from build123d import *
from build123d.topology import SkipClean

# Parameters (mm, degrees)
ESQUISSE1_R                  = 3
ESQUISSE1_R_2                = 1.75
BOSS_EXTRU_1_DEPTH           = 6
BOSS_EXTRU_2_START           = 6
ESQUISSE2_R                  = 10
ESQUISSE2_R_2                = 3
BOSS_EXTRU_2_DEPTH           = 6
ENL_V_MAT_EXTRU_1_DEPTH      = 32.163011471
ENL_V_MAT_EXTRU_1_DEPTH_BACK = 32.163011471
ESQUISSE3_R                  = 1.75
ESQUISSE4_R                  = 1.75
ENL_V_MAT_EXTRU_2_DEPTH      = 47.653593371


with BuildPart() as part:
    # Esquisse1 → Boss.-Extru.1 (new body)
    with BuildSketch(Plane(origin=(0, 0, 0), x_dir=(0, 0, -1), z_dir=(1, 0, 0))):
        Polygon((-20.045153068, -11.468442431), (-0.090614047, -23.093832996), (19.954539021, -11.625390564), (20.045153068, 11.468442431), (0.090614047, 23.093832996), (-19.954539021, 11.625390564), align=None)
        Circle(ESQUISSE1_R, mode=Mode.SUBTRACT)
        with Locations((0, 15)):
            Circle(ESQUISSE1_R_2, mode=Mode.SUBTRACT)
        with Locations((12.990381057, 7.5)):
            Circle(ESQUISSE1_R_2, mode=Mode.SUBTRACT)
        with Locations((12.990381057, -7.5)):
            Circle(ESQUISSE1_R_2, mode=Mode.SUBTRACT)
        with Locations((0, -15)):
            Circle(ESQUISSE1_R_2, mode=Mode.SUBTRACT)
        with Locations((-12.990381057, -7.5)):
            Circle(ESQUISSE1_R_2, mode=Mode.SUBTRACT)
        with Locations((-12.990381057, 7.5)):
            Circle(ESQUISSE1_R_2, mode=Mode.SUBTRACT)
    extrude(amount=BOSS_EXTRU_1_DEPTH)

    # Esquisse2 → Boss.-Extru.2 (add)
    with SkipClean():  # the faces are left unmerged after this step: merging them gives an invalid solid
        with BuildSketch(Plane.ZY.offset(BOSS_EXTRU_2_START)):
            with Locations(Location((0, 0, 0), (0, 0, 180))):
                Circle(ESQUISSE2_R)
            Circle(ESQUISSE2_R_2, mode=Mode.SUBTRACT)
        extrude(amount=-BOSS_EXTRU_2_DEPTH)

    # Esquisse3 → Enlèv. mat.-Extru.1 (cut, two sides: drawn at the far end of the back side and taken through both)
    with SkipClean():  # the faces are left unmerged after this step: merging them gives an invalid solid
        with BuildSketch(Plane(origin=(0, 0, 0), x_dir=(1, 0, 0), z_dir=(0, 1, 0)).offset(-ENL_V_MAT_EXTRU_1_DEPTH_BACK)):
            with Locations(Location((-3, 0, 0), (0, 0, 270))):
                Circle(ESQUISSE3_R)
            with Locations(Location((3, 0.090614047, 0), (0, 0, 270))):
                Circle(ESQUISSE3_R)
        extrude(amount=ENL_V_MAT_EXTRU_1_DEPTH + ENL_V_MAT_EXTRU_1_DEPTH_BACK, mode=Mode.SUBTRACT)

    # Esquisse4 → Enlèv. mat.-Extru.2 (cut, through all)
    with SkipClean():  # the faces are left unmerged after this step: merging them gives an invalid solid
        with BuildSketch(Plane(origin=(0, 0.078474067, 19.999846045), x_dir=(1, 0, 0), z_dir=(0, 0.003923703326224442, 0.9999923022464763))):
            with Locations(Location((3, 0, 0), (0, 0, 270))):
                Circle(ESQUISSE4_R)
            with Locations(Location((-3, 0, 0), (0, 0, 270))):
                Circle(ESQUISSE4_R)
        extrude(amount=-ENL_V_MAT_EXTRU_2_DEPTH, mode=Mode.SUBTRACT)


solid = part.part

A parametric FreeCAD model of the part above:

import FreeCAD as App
import Part
import Sketcher


def add_polygon(sketch, points):
    """Adds a closed chain of lines whose ends are joined by coincident constraints."""
    first, n = sketch.GeometryCount, len(points)
    for a, b in zip(points, points[1:] + points[:1]):
        sketch.addGeometry(Part.LineSegment(App.Vector(*a, 0), App.Vector(*b, 0)), False)
    for i in range(n):
        sketch.addConstraint(Sketcher.Constraint("Coincident", first + i, 2, first + (i + 1) % n, 1))

doc = App.newDocument("Part")
params = doc.addObject("Spreadsheet::Sheet", "Params")
for row, (alias, value) in enumerate([
    ("sketch1_diameter", "6 mm"),
    ("sketch1_diameter2", "3.5 mm"),
    ("pad1_length", "6 mm"),
    ("sketch2_diameter", "20 mm"),
    ("sketch2_diameter2", "6 mm"),
    ("pad2_length", "6 mm"),
    ("sketch3_diameter", "3.5 mm"),
    ("sketch4_diameter", "3.5 mm"),
], start=1):
    params.set(f"A{row}", alias)
    params.set(f"B{row}", "=" + value)
    params.setAlias(f"B{row}", alias)

body = doc.addObject("PartDesign::Body", "Body")

# Sketch on YZ plane
sketch1 = body.newObject("Sketcher::SketchObject", "Sketch")
sketch1.AttachmentSupport = (doc.getObject("YZ_Plane"), [""])
sketch1.MapMode = "FlatFace"
add_polygon(sketch1, [(-11.5, 20), (-23.1, 0.1), (-11.6, -20), (11.5, -20), (23.1, -0.1), (11.6, 20)])  # lines 0-5
sketch1.addGeometry(Part.Circle(App.Vector(-7.5, 13, 0), App.Vector(0, 0, 1), 1.8), False)  # 6
sketch1.addGeometry(Part.Circle(App.Vector(-15, 0, 0), App.Vector(0, 0, 1), 1.8), False)  # 7
sketch1.addGeometry(Part.Circle(App.Vector(-7.5, -13, 0), App.Vector(0, 0, 1), 1.8), False)  # 8
sketch1.addGeometry(Part.Circle(App.Vector(7.5, 13, 0), App.Vector(0, 0, 1), 1.8), False)  # 9
sketch1.addGeometry(Part.Circle(App.Vector(0, 0, 0), App.Vector(0, 0, 1), 3), False)  # 10
sketch1.addGeometry(Part.Circle(App.Vector(7.5, -13, 0), App.Vector(0, 0, 1), 1.8), False)  # 11
sketch1.addGeometry(Part.Circle(App.Vector(15, 0, 0), App.Vector(0, 0, 1), 1.8), False)  # 12
sketch1.addConstraint(Sketcher.Constraint("Coincident", 10, 3, -1, 1))
sketch1.addConstraint(Sketcher.Constraint("Equal", 6, 7))
sketch1.addConstraint(Sketcher.Constraint("Equal", 7, 8))
sketch1.addConstraint(Sketcher.Constraint("Equal", 8, 9))
sketch1.addConstraint(Sketcher.Constraint("Equal", 9, 11))
sketch1.addConstraint(Sketcher.Constraint("Equal", 11, 12))
sketch1.addConstraint(Sketcher.Constraint("Symmetric", 8, 3, 9, 3, -1, 1))
sketch1.addConstraint(Sketcher.Constraint("Symmetric", 6, 3, 11, 3, -1, 1))
sketch1.addConstraint(Sketcher.Constraint("Symmetric", 7, 3, 12, 3, -1, 1))
sketch1.addConstraint(Sketcher.Constraint("Symmetric", 0, 2, 3, 2, -1, 1))
sketch1.addConstraint(Sketcher.Constraint("Symmetric", 1, 2, 4, 2, -1, 1))
sketch1.addConstraint(Sketcher.Constraint("Symmetric", 2, 2, 5, 2, -1, 1))
sketch1.addConstraint(Sketcher.Constraint("Symmetric", 6, 3, 9, 3, -2))
sketch1.addConstraint(Sketcher.Constraint("PointOnObject", 7, 3, -1))
sketch1.addConstraint(Sketcher.Constraint("Equal", 0, 1))
sketch1.addConstraint(Sketcher.Constraint("Equal", 1, 2))
sketch1.addConstraint(Sketcher.Constraint("Diameter", 10, 6.0))
sketch1.addConstraint(Sketcher.Constraint("Diameter", 6, 3.5))
sketch1.addConstraint(Sketcher.Constraint("DistanceX", 7, 3, -1, 1, 15.0))
sketch1.addConstraint(Sketcher.Constraint("DistanceX", 6, 3, 9, 3, 15.0))
sketch1.addConstraint(Sketcher.Constraint("Distance", 0, 23.094011))
sketch1.addConstraint(Sketcher.Constraint("DistanceY", -1, 1, 6, 3, 12.990381))
sketch1.addConstraint(Sketcher.Constraint("DistanceX", 1, 2, -1, 1, 11.625391))
sketch1.addConstraint(Sketcher.Constraint("DistanceY", 1, 2, -1, 1, 19.954539))
sketch1.addConstraint(Sketcher.Constraint("DistanceX", 2, 2, 3, 2, 11.625391))
sketch1.setExpression("Constraints[22]", "Params.sketch1_diameter")
sketch1.setExpression("Constraints[23]", "Params.sketch1_diameter2")
pad1 = body.newObject("PartDesign::Pad", "Pad")
pad1.Profile = sketch1
pad1.setExpression("Length", "Params.pad1_length")

# Sketch on YZ plane
sketch2 = body.newObject("Sketcher::SketchObject", "Sketch001")
sketch2.AttachmentSupport = (doc.getObject("YZ_Plane"), [""])
sketch2.MapMode = "FlatFace"
sketch2.AttachmentOffset = App.Placement(App.Vector(0, 0, -6), App.Rotation())
sketch2.addGeometry(Part.Circle(App.Vector(0, 0, 0), App.Vector(0, 0, 1), 10), False)
sketch2.addGeometry(Part.Circle(App.Vector(0, 0, 0), App.Vector(0, 0, 1), 3), False)
sketch2.addConstraint(Sketcher.Constraint("Coincident", 0, 3, -1, 1))
sketch2.addConstraint(Sketcher.Constraint("Coincident", 1, 3, -1, 1))
sketch2.addConstraint(Sketcher.Constraint("Diameter", 0, 20.0))
sketch2.addConstraint(Sketcher.Constraint("Diameter", 1, 6.0))
sketch2.setExpression("Constraints[2]", "Params.sketch2_diameter")
sketch2.setExpression("Constraints[3]", "Params.sketch2_diameter2")
pad2 = body.newObject("PartDesign::Pad", "Pad001")
pad2.Profile = sketch2
pad2.setExpression("Length", "Params.pad2_length")

# Sketch on XZ plane
sketch3 = body.newObject("Sketcher::SketchObject", "Sketch002")
sketch3.AttachmentSupport = (doc.getObject("XZ_Plane"), [""])
sketch3.MapMode = "FlatFace"
sketch3.addGeometry(Part.Circle(App.Vector(-3, 0, 0), App.Vector(0, 0, 1), 1.8), False)
sketch3.addGeometry(Part.Circle(App.Vector(3, -0.1, 0), App.Vector(0, 0, 1), 1.8), False)
sketch3.addConstraint(Sketcher.Constraint("Equal", 0, 1))
sketch3.addConstraint(Sketcher.Constraint("PointOnObject", 0, 3, -1))
sketch3.addConstraint(Sketcher.Constraint("Diameter", 0, 3.5))
sketch3.addConstraint(Sketcher.Constraint("DistanceX", 0, 3, -1, 1, 3.0))
sketch3.addConstraint(Sketcher.Constraint("DistanceX", -1, 1, 1, 3, 3.0))
sketch3.addConstraint(Sketcher.Constraint("DistanceY", 1, 3, -1, 1, 0.090614))
sketch3.setExpression("Constraints[2]", "Params.sketch3_diameter")
pocket1 = body.newObject("PartDesign::Pocket", "Pocket")
pocket1.Profile = sketch3
pocket1.Type = "ThroughAll"
pocket1.Midplane = True

# Sketch on an angled plane
sketch4 = body.newObject("Sketcher::SketchObject", "Sketch003")
sketch4.Placement = App.Placement(App.Vector(0, 0.078474, 19.999846), App.Rotation(App.Vector(1, 0, 0), App.Vector(0, 0.999992302, -0.003923703), App.Vector(0, 0.003923703, 0.999992302), "ZXY"))
sketch4.addGeometry(Part.Circle(App.Vector(3, 0, 0), App.Vector(0, 0, 1), 1.8), False)
sketch4.addGeometry(Part.Circle(App.Vector(-3, 0, 0), App.Vector(0, 0, 1), 1.8), False)
sketch4.addConstraint(Sketcher.Constraint("Equal", 0, 1))
sketch4.addConstraint(Sketcher.Constraint("Symmetric", 0, 3, 1, 3, -1, 1))
sketch4.addConstraint(Sketcher.Constraint("PointOnObject", 0, 3, -1))
sketch4.addConstraint(Sketcher.Constraint("Diameter", 0, 3.5))
sketch4.addConstraint(Sketcher.Constraint("DistanceX", -1, 1, 0, 3, 3.0))
sketch4.setExpression("Constraints[3]", "Params.sketch4_diameter")
pocket2 = body.newObject("PartDesign::Pocket", "Pocket001")
pocket2.Profile = sketch4
pocket2.Type = "ThroughAll"

doc.recompute()
